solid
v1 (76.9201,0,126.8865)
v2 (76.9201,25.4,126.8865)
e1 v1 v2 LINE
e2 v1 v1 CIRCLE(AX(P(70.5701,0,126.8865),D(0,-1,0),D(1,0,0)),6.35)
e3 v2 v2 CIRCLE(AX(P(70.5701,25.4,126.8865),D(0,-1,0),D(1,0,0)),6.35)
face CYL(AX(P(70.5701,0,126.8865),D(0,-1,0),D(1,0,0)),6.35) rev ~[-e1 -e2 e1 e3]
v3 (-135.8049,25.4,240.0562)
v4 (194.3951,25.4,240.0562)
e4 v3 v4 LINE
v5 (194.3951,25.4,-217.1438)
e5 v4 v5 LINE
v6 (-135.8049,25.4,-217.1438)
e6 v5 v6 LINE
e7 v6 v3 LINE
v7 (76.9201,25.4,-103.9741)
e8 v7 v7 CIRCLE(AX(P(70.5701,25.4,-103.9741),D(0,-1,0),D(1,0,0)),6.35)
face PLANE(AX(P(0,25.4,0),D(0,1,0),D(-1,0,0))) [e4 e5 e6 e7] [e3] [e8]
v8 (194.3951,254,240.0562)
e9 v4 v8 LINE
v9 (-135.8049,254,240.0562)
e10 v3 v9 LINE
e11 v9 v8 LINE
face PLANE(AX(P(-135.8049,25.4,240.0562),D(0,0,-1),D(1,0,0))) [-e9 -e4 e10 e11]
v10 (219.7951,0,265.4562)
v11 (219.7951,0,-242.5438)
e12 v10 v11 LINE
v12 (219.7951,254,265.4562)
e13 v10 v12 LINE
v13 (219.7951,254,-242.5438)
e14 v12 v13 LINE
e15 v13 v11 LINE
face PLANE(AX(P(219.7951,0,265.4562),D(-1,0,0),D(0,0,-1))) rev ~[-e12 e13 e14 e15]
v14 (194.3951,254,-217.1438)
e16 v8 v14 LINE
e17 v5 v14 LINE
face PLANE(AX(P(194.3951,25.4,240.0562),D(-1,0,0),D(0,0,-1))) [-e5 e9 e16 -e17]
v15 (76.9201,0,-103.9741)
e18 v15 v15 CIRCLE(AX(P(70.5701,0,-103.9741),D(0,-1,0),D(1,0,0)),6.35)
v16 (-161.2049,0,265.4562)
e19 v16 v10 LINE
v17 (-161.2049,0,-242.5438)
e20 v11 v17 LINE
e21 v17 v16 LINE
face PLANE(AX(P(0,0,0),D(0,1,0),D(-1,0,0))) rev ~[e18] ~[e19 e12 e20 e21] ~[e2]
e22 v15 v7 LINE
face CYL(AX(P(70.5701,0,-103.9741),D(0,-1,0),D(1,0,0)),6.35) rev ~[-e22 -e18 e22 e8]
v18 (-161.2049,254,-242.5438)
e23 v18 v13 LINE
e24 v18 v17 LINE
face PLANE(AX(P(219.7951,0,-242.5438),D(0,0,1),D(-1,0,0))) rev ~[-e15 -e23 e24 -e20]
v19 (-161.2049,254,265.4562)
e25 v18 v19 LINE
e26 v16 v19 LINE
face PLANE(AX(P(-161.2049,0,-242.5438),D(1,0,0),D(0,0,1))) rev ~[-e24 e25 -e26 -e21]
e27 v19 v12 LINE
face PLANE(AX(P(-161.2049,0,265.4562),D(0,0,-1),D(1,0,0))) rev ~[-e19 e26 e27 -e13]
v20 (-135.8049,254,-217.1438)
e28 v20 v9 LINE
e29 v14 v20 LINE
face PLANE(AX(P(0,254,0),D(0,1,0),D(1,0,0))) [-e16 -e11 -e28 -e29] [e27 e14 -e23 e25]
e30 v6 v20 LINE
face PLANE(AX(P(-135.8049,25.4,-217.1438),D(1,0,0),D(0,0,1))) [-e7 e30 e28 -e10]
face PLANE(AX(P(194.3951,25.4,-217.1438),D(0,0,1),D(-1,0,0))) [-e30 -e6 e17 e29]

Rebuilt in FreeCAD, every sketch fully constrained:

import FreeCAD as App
import Part
import Sketcher
from FreeCAD import Vector
Q = App.Units.Quantity


def add_polygon(sketch, points):
    """Adds a closed chain of lines whose ends are joined by coincident constraints."""
    first, n = sketch.GeometryCount, len(points)
    for a, b in zip(points, points[1:] + points[:1]):
        sketch.addGeometry(Part.LineSegment(App.Vector(*a, 0), App.Vector(*b, 0)), False)
    for i in range(n):
        sketch.addConstraint(Sketcher.Constraint("Coincident", first + i, 2, first + (i + 1) % n, 1))

doc = App.newDocument("Part")
body = doc.addObject("PartDesign::Body", "Body")

# Sketch on XZ plane
sketch1 = doc.addObject("Sketcher::SketchObject", "Sketch")
body.addObject(sketch1)
sketch1.AttachmentSupport = (doc.XZ_Plane, [""])
sketch1.MapMode = "FlatFace"
add_polygon(sketch1, [(-161.2049, -242.5438), (-161.2049, 265.4562), (219.7951, 265.4562), (219.7951, -242.5438)])  # lines 0-3
sketch1.addConstraint([
    Sketcher.Constraint("Vertical", 0),
    Sketcher.Constraint("Horizontal", 1),
    Sketcher.Constraint("Vertical", 2),
    Sketcher.Constraint("Horizontal", 3),
    Sketcher.Constraint("DistanceX", 1, 1, 1, 2, Q("15 in")),
    Sketcher.Constraint("DistanceY", 0, 1, 0, 2, Q("20 in")),
    Sketcher.Constraint("DistanceX", 0, 2, -1, 1, 161.205),
    Sketcher.Constraint("DistanceY", -1, 1, 0, 2, 265.4562),
])
pad1 = doc.addObject("PartDesign::Pad", "Pad")
body.addObject(pad1)
pad1.Profile = sketch1
pad1.Length = Q("1 in")
pad1.Reversed = True

# Sketch on XZ plane
sketch2 = doc.addObject("Sketcher::SketchObject", "Sketch001")
body.addObject(sketch2)
sketch2.AttachmentSupport = (doc.XZ_Plane, [""])
sketch2.MapMode = "FlatFace"
sketch2.AttachmentOffset = App.Placement(Vector(0, 0, -1 * 25.4), App.Rotation())
add_polygon(sketch2, [(-161.2049, -242.5438), (-161.2049, 265.4562), (219.7951, 265.4562), (219.7951, -242.5438)])  # lines 0-3
add_polygon(sketch2, [(194.3951, 240.0562), (-135.8049, 240.0562), (-135.8049, -217.1438), (194.3951, -217.1438)])  # lines 4-7
sketch2.addConstraint([
    Sketcher.Constraint("Vertical", 0),
    Sketcher.Constraint("Horizontal", 1),
    Sketcher.Constraint("Vertical", 2),
    Sketcher.Constraint("Horizontal", 3),
    Sketcher.Constraint("Horizontal", 4),
    Sketcher.Constraint("Vertical", 5),
    Sketcher.Constraint("Horizontal", 6),
    Sketcher.Constraint("Vertical", 7),
    Sketcher.Constraint("DistanceX", 0, 2, 4, 2, Q("1 in")),
    Sketcher.Constraint("DistanceY", 4, 2, 0, 2, Q("1 in")),
    Sketcher.Constraint("DistanceY", 3, 2, 5, 2, Q("1 in")),
    Sketcher.Constraint("DistanceX", 6, 2, 2, 2, Q("1 in")),
    Sketcher.Constraint("DistanceX", 1, 1, 1, 2, Q("15 in")),
    Sketcher.Constraint("DistanceY", 0, 1, 0, 2, Q("20 in")),
    Sketcher.Constraint("DistanceX", 0, 2, -1, 1, 161.205),
    Sketcher.Constraint("DistanceY", -1, 1, 0, 2, 265.4562),
])
pad2 = doc.addObject("PartDesign::Pad", "Pad001")
body.addObject(pad2)
pad2.Profile = sketch2
pad2.Length = Q("9 in")
pad2.Reversed = True

# Sketch on XZ plane
sketch3 = doc.addObject("Sketcher::SketchObject", "Sketch002")
body.addObject(sketch3)
sketch3.AttachmentSupport = (doc.XZ_Plane, [""])
sketch3.MapMode = "FlatFace"
sketch3.addGeometry([
    Part.Circle(Vector(70.5701, 126.8865, 0), Vector(0, 0, 1), 6.35),
    Part.Circle(Vector(70.5701, -103.9741, 0), Vector(0, 0, 1), 6.35),
], False)
sketch3.addConstraint([
    Sketcher.Constraint("Equal", 0, 1),
    Sketcher.Constraint("Vertical", 0, 3, 1, 3),
    Sketcher.Constraint("Diameter", 0, Q("0.5 in")),
    Sketcher.Constraint("DistanceY", 1, 3, 0, 3, Q("9.089 in")),
    Sketcher.Constraint("DistanceX", -1, 1, 0, 3, 70.57),
    Sketcher.Constraint("DistanceY", -1, 1, 0, 3, 126.8865),
])
pocket1 = doc.addObject("PartDesign::Pocket", "Pocket")
body.addObject(pocket1)
pocket1.Profile = sketch3
pocket1.Type = "ThroughAll"

doc.recompute()
